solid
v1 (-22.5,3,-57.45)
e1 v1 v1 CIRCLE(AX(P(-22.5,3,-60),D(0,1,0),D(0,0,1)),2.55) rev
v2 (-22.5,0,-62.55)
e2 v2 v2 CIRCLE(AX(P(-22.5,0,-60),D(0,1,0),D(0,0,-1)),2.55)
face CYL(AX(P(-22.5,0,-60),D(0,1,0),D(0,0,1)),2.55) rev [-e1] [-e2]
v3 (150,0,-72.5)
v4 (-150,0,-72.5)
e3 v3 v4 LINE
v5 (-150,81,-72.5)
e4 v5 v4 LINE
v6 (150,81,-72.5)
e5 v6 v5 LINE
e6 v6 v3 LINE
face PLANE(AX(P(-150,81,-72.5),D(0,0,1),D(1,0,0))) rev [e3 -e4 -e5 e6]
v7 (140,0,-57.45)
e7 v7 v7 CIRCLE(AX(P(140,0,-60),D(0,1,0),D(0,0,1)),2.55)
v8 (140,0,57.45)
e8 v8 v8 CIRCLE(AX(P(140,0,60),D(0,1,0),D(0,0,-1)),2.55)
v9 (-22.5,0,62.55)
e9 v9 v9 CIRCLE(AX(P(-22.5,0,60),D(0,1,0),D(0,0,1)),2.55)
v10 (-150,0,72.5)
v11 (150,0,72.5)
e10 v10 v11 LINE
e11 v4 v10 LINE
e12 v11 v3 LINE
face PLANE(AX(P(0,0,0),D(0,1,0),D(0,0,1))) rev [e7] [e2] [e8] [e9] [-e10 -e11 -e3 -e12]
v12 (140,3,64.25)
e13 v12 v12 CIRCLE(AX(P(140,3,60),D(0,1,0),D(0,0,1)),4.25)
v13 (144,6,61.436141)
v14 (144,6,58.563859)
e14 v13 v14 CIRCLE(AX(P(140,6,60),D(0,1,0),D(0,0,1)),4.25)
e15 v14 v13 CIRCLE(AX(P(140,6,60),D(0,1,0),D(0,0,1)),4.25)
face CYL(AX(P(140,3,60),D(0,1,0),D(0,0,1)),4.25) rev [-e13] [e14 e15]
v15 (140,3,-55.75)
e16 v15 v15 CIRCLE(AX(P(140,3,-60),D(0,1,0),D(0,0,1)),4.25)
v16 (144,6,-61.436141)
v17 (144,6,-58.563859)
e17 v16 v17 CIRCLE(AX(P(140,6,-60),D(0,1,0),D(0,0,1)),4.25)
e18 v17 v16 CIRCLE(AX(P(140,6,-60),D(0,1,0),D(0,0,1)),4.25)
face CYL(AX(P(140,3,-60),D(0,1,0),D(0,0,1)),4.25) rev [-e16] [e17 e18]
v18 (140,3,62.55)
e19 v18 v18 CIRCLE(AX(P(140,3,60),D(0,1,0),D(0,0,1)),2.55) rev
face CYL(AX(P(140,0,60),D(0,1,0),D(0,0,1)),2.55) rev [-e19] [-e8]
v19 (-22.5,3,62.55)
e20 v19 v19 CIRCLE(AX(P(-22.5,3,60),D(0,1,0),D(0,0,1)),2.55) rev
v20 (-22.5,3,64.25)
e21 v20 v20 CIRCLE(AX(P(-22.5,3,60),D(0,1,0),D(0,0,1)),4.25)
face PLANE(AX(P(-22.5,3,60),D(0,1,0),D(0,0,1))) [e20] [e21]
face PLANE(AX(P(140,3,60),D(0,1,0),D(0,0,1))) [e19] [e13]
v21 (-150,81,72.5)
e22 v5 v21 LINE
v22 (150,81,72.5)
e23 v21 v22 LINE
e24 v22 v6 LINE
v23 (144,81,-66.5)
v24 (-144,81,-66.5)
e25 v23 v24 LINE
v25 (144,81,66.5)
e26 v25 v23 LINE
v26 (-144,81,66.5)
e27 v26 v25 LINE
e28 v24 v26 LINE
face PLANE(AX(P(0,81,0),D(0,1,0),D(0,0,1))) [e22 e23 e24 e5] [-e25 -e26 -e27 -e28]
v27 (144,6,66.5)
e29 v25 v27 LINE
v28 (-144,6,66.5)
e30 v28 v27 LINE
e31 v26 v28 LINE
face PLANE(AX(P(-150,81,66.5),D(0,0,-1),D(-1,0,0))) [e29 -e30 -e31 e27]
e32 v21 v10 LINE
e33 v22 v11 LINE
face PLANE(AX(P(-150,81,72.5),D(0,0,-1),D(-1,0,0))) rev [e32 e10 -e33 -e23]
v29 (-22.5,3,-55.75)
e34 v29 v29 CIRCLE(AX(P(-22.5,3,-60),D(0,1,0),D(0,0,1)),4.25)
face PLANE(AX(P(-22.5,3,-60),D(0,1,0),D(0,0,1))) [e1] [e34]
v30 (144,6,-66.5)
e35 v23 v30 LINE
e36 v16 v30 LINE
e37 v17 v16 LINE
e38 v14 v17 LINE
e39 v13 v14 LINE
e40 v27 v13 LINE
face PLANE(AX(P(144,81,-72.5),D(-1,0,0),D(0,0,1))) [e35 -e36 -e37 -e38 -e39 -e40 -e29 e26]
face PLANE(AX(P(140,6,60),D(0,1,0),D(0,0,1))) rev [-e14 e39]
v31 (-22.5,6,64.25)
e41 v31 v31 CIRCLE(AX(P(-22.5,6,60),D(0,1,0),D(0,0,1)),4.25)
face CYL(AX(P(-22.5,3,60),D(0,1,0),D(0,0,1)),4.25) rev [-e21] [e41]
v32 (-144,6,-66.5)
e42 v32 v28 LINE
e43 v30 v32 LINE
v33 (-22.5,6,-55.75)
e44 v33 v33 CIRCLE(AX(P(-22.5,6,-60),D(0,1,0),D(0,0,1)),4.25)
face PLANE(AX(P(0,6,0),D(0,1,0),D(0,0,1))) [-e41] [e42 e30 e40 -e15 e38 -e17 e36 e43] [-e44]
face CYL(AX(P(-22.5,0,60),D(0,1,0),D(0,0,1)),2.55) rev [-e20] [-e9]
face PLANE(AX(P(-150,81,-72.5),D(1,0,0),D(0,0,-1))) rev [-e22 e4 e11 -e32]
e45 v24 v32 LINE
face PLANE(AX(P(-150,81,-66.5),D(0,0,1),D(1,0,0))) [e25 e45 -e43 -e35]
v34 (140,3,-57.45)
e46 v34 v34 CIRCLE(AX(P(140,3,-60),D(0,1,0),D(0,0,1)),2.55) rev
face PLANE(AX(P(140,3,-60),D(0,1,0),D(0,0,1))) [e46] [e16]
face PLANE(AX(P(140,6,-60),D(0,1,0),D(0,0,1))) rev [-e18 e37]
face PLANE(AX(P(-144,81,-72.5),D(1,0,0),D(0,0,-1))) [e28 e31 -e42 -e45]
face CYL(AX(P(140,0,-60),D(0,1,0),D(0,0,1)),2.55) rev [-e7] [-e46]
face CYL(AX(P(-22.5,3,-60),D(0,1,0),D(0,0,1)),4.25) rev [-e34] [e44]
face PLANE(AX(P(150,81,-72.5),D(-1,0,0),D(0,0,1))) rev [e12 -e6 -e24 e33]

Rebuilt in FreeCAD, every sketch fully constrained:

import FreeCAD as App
import Part
import Sketcher
Q = App.Units.Quantity


def faces_at(feature, points):
    """Names of the faces that lie closest to the given points."""
    faces = feature.Shape.Faces
    near = lambda p: min(range(len(faces)), key=lambda i: faces[i].distToShape(Part.Vertex(*p))[0])
    return sorted({f"Face{near(p) + 1}" for p in points})

doc = App.newDocument("Part")
params = doc.addObject("Spreadsheet::Sheet", "Params")
for row, (alias, value) in enumerate([
    ("sketch1_width", "300 mm"),
    ("sketch1_height", "145 mm"),
    ("pad1_length", "81 mm"),
    ("thickness_wall", "6 mm"),
    ("sketch2_diameter", "5.1 mm"),
    ("sketch3_diameter", "8.5 mm"),
    ("pocket2_length", "3 mm"),
], start=1):
    params.set(f"A{row}", alias)
    params.set(f"B{row}", "=" + value)
    params.setAlias(f"B{row}", alias)

body = doc.addObject("PartDesign::Body", "Body")

# Sketch on XZ plane
sketch1 = doc.addObject("Sketcher::SketchObject", "Sketch")
body.addObject(sketch1)
sketch1.AttachmentSupport = (doc.XZ_Plane, [""])
sketch1.MapMode = "FlatFace"
sketch1.addGeometry([
    Part.LineSegment(App.Vector(-150, -72.5, 0), App.Vector(-150, 72.5, 0)),
    Part.LineSegment(App.Vector(-150, 72.5, 0), App.Vector(150, 72.5, 0)),
    Part.LineSegment(App.Vector(150, 72.5, 0), App.Vector(150, -72.5, 0)),
    Part.LineSegment(App.Vector(150, -72.5, 0), App.Vector(-150, -72.5, 0)),
], False)
sketch1.addConstraint([
    Sketcher.Constraint("Coincident", 0, 2, 1, 1),
    Sketcher.Constraint("Coincident", 1, 2, 2, 1),
    Sketcher.Constraint("Coincident", 2, 2, 3, 1),
    Sketcher.Constraint("Coincident", 3, 2, 0, 1),
    Sketcher.Constraint("Vertical", 0),
    Sketcher.Constraint("Horizontal", 1),
    Sketcher.Constraint("Vertical", 2),
    Sketcher.Constraint("Horizontal", 3),
    Sketcher.Constraint("Symmetric", 0, 2, 2, 2, -1, 1),
    Sketcher.Constraint("DistanceX", 1, 1, 1, 2, Q("300 mm")),
    Sketcher.Constraint("DistanceY", 0, 1, 0, 2, Q("145 mm")),
])
sketch1.setExpression("Constraints[9]", "Params.sketch1_width")
sketch1.setExpression("Constraints[10]", "Params.sketch1_height")
pad1 = doc.addObject("PartDesign::Pad", "Pad")
body.addObject(pad1)
pad1.Profile = sketch1
pad1.setExpression("Length", "Params.pad1_length")
pad1.Reversed = True
doc.recompute()

thickness = doc.addObject("PartDesign::Thickness", "Thickness")
body.addObject(thickness)
thickness.Base = (pad1, faces_at(pad1, [(0, 81, 0)]))
thickness.setExpression("Value", "Params.thickness_wall")
thickness.Reversed = True
thickness.Join = "Intersection"

# Sketch on XZ plane
sketch2 = doc.addObject("Sketcher::SketchObject", "Sketch001")
body.addObject(sketch2)
sketch2.AttachmentSupport = (doc.XZ_Plane, [""])
sketch2.MapMode = "FlatFace"
sketch2.AttachmentOffset = App.Placement(App.Vector(0, 0, -6), App.Rotation())
sketch2.addGeometry([
    Part.Circle(App.Vector(140, -60, 0), App.Vector(0, 0, 1), 2.55),
    Part.Circle(App.Vector(140, 60, 0), App.Vector(0, 0, 1), 2.55),
    Part.Circle(App.Vector(-22.5, 60, 0), App.Vector(0, 0, 1), 2.55),
    Part.Circle(App.Vector(-22.5, -60, 0), App.Vector(0, 0, 1), 2.55),
], False)
sketch2.addConstraint([
    Sketcher.Constraint("Equal", 0, 1),
    Sketcher.Constraint("Equal", 1, 2),
    Sketcher.Constraint("Equal", 2, 3),
    Sketcher.Constraint("Symmetric", 0, 3, 1, 3, -1),
    Sketcher.Constraint("Symmetric", 2, 3, 3, 3, -1),
    Sketcher.Constraint("Horizontal", 1, 3, 2, 3),
    Sketcher.Constraint("Diameter", 0, Q("5.1 mm")),
    Sketcher.Constraint("DistanceX", -1, 1, 0, 3, Q("140 mm")),
    Sketcher.Constraint("DistanceY", 0, 3, -1, 1, Q("60 mm")),
    Sketcher.Constraint("DistanceX", 2, 3, -1, 1, Q("22.5 mm")),
])
sketch2.setExpression("Constraints[6]", "Params.sketch2_diameter")
pocket1 = doc.addObject("PartDesign::Pocket", "Pocket")
body.addObject(pocket1)
pocket1.Profile = sketch2
pocket1.Type = "ThroughAll"
pocket1.Reversed = True

# Sketch on XZ plane
sketch3 = doc.addObject("Sketcher::SketchObject", "Sketch002")
body.addObject(sketch3)
sketch3.AttachmentSupport = (doc.XZ_Plane, [""])
sketch3.MapMode = "FlatFace"
sketch3.AttachmentOffset = App.Placement(App.Vector(0, 0, -6), App.Rotation())
sketch3.addGeometry([
    Part.Circle(App.Vector(140, -60, 0), App.Vector(0, 0, 1), 4.25),
    Part.Circle(App.Vector(-22.5, -60, 0), App.Vector(0, 0, 1), 4.25),
    Part.Circle(App.Vector(-22.5, 60, 0), App.Vector(0, 0, 1), 4.25),
    Part.Circle(App.Vector(140, 60, 0), App.Vector(0, 0, 1), 4.25),
], False)
sketch3.addConstraint([
    Sketcher.Constraint("Equal", 0, 1),
    Sketcher.Constraint("Equal", 1, 2),
    Sketcher.Constraint("Equal", 2, 3),
    Sketcher.Constraint("Symmetric", 1, 3, 2, 3, -1),
    Sketcher.Constraint("Symmetric", 0, 3, 3, 3, -1),
    Sketcher.Constraint("Horizontal", 0, 3, 1, 3),
    Sketcher.Constraint("Diameter", 0, Q("8.5 mm")),
    Sketcher.Constraint("DistanceX", -1, 1, 0, 3, Q("140 mm")),
    Sketcher.Constraint("DistanceY", 0, 3, -1, 1, Q("60 mm")),
    Sketcher.Constraint("DistanceX", 1, 3, -1, 1, Q("22.5 mm")),
])
sketch3.setExpression("Constraints[6]", "Params.sketch3_diameter")
pocket2 = doc.addObject("PartDesign::Pocket", "Pocket001")
body.addObject(pocket2)
pocket2.Profile = sketch3
pocket2.setExpression("Length", "Params.pocket2_length")
pocket2.Reversed = True

doc.recompute()
